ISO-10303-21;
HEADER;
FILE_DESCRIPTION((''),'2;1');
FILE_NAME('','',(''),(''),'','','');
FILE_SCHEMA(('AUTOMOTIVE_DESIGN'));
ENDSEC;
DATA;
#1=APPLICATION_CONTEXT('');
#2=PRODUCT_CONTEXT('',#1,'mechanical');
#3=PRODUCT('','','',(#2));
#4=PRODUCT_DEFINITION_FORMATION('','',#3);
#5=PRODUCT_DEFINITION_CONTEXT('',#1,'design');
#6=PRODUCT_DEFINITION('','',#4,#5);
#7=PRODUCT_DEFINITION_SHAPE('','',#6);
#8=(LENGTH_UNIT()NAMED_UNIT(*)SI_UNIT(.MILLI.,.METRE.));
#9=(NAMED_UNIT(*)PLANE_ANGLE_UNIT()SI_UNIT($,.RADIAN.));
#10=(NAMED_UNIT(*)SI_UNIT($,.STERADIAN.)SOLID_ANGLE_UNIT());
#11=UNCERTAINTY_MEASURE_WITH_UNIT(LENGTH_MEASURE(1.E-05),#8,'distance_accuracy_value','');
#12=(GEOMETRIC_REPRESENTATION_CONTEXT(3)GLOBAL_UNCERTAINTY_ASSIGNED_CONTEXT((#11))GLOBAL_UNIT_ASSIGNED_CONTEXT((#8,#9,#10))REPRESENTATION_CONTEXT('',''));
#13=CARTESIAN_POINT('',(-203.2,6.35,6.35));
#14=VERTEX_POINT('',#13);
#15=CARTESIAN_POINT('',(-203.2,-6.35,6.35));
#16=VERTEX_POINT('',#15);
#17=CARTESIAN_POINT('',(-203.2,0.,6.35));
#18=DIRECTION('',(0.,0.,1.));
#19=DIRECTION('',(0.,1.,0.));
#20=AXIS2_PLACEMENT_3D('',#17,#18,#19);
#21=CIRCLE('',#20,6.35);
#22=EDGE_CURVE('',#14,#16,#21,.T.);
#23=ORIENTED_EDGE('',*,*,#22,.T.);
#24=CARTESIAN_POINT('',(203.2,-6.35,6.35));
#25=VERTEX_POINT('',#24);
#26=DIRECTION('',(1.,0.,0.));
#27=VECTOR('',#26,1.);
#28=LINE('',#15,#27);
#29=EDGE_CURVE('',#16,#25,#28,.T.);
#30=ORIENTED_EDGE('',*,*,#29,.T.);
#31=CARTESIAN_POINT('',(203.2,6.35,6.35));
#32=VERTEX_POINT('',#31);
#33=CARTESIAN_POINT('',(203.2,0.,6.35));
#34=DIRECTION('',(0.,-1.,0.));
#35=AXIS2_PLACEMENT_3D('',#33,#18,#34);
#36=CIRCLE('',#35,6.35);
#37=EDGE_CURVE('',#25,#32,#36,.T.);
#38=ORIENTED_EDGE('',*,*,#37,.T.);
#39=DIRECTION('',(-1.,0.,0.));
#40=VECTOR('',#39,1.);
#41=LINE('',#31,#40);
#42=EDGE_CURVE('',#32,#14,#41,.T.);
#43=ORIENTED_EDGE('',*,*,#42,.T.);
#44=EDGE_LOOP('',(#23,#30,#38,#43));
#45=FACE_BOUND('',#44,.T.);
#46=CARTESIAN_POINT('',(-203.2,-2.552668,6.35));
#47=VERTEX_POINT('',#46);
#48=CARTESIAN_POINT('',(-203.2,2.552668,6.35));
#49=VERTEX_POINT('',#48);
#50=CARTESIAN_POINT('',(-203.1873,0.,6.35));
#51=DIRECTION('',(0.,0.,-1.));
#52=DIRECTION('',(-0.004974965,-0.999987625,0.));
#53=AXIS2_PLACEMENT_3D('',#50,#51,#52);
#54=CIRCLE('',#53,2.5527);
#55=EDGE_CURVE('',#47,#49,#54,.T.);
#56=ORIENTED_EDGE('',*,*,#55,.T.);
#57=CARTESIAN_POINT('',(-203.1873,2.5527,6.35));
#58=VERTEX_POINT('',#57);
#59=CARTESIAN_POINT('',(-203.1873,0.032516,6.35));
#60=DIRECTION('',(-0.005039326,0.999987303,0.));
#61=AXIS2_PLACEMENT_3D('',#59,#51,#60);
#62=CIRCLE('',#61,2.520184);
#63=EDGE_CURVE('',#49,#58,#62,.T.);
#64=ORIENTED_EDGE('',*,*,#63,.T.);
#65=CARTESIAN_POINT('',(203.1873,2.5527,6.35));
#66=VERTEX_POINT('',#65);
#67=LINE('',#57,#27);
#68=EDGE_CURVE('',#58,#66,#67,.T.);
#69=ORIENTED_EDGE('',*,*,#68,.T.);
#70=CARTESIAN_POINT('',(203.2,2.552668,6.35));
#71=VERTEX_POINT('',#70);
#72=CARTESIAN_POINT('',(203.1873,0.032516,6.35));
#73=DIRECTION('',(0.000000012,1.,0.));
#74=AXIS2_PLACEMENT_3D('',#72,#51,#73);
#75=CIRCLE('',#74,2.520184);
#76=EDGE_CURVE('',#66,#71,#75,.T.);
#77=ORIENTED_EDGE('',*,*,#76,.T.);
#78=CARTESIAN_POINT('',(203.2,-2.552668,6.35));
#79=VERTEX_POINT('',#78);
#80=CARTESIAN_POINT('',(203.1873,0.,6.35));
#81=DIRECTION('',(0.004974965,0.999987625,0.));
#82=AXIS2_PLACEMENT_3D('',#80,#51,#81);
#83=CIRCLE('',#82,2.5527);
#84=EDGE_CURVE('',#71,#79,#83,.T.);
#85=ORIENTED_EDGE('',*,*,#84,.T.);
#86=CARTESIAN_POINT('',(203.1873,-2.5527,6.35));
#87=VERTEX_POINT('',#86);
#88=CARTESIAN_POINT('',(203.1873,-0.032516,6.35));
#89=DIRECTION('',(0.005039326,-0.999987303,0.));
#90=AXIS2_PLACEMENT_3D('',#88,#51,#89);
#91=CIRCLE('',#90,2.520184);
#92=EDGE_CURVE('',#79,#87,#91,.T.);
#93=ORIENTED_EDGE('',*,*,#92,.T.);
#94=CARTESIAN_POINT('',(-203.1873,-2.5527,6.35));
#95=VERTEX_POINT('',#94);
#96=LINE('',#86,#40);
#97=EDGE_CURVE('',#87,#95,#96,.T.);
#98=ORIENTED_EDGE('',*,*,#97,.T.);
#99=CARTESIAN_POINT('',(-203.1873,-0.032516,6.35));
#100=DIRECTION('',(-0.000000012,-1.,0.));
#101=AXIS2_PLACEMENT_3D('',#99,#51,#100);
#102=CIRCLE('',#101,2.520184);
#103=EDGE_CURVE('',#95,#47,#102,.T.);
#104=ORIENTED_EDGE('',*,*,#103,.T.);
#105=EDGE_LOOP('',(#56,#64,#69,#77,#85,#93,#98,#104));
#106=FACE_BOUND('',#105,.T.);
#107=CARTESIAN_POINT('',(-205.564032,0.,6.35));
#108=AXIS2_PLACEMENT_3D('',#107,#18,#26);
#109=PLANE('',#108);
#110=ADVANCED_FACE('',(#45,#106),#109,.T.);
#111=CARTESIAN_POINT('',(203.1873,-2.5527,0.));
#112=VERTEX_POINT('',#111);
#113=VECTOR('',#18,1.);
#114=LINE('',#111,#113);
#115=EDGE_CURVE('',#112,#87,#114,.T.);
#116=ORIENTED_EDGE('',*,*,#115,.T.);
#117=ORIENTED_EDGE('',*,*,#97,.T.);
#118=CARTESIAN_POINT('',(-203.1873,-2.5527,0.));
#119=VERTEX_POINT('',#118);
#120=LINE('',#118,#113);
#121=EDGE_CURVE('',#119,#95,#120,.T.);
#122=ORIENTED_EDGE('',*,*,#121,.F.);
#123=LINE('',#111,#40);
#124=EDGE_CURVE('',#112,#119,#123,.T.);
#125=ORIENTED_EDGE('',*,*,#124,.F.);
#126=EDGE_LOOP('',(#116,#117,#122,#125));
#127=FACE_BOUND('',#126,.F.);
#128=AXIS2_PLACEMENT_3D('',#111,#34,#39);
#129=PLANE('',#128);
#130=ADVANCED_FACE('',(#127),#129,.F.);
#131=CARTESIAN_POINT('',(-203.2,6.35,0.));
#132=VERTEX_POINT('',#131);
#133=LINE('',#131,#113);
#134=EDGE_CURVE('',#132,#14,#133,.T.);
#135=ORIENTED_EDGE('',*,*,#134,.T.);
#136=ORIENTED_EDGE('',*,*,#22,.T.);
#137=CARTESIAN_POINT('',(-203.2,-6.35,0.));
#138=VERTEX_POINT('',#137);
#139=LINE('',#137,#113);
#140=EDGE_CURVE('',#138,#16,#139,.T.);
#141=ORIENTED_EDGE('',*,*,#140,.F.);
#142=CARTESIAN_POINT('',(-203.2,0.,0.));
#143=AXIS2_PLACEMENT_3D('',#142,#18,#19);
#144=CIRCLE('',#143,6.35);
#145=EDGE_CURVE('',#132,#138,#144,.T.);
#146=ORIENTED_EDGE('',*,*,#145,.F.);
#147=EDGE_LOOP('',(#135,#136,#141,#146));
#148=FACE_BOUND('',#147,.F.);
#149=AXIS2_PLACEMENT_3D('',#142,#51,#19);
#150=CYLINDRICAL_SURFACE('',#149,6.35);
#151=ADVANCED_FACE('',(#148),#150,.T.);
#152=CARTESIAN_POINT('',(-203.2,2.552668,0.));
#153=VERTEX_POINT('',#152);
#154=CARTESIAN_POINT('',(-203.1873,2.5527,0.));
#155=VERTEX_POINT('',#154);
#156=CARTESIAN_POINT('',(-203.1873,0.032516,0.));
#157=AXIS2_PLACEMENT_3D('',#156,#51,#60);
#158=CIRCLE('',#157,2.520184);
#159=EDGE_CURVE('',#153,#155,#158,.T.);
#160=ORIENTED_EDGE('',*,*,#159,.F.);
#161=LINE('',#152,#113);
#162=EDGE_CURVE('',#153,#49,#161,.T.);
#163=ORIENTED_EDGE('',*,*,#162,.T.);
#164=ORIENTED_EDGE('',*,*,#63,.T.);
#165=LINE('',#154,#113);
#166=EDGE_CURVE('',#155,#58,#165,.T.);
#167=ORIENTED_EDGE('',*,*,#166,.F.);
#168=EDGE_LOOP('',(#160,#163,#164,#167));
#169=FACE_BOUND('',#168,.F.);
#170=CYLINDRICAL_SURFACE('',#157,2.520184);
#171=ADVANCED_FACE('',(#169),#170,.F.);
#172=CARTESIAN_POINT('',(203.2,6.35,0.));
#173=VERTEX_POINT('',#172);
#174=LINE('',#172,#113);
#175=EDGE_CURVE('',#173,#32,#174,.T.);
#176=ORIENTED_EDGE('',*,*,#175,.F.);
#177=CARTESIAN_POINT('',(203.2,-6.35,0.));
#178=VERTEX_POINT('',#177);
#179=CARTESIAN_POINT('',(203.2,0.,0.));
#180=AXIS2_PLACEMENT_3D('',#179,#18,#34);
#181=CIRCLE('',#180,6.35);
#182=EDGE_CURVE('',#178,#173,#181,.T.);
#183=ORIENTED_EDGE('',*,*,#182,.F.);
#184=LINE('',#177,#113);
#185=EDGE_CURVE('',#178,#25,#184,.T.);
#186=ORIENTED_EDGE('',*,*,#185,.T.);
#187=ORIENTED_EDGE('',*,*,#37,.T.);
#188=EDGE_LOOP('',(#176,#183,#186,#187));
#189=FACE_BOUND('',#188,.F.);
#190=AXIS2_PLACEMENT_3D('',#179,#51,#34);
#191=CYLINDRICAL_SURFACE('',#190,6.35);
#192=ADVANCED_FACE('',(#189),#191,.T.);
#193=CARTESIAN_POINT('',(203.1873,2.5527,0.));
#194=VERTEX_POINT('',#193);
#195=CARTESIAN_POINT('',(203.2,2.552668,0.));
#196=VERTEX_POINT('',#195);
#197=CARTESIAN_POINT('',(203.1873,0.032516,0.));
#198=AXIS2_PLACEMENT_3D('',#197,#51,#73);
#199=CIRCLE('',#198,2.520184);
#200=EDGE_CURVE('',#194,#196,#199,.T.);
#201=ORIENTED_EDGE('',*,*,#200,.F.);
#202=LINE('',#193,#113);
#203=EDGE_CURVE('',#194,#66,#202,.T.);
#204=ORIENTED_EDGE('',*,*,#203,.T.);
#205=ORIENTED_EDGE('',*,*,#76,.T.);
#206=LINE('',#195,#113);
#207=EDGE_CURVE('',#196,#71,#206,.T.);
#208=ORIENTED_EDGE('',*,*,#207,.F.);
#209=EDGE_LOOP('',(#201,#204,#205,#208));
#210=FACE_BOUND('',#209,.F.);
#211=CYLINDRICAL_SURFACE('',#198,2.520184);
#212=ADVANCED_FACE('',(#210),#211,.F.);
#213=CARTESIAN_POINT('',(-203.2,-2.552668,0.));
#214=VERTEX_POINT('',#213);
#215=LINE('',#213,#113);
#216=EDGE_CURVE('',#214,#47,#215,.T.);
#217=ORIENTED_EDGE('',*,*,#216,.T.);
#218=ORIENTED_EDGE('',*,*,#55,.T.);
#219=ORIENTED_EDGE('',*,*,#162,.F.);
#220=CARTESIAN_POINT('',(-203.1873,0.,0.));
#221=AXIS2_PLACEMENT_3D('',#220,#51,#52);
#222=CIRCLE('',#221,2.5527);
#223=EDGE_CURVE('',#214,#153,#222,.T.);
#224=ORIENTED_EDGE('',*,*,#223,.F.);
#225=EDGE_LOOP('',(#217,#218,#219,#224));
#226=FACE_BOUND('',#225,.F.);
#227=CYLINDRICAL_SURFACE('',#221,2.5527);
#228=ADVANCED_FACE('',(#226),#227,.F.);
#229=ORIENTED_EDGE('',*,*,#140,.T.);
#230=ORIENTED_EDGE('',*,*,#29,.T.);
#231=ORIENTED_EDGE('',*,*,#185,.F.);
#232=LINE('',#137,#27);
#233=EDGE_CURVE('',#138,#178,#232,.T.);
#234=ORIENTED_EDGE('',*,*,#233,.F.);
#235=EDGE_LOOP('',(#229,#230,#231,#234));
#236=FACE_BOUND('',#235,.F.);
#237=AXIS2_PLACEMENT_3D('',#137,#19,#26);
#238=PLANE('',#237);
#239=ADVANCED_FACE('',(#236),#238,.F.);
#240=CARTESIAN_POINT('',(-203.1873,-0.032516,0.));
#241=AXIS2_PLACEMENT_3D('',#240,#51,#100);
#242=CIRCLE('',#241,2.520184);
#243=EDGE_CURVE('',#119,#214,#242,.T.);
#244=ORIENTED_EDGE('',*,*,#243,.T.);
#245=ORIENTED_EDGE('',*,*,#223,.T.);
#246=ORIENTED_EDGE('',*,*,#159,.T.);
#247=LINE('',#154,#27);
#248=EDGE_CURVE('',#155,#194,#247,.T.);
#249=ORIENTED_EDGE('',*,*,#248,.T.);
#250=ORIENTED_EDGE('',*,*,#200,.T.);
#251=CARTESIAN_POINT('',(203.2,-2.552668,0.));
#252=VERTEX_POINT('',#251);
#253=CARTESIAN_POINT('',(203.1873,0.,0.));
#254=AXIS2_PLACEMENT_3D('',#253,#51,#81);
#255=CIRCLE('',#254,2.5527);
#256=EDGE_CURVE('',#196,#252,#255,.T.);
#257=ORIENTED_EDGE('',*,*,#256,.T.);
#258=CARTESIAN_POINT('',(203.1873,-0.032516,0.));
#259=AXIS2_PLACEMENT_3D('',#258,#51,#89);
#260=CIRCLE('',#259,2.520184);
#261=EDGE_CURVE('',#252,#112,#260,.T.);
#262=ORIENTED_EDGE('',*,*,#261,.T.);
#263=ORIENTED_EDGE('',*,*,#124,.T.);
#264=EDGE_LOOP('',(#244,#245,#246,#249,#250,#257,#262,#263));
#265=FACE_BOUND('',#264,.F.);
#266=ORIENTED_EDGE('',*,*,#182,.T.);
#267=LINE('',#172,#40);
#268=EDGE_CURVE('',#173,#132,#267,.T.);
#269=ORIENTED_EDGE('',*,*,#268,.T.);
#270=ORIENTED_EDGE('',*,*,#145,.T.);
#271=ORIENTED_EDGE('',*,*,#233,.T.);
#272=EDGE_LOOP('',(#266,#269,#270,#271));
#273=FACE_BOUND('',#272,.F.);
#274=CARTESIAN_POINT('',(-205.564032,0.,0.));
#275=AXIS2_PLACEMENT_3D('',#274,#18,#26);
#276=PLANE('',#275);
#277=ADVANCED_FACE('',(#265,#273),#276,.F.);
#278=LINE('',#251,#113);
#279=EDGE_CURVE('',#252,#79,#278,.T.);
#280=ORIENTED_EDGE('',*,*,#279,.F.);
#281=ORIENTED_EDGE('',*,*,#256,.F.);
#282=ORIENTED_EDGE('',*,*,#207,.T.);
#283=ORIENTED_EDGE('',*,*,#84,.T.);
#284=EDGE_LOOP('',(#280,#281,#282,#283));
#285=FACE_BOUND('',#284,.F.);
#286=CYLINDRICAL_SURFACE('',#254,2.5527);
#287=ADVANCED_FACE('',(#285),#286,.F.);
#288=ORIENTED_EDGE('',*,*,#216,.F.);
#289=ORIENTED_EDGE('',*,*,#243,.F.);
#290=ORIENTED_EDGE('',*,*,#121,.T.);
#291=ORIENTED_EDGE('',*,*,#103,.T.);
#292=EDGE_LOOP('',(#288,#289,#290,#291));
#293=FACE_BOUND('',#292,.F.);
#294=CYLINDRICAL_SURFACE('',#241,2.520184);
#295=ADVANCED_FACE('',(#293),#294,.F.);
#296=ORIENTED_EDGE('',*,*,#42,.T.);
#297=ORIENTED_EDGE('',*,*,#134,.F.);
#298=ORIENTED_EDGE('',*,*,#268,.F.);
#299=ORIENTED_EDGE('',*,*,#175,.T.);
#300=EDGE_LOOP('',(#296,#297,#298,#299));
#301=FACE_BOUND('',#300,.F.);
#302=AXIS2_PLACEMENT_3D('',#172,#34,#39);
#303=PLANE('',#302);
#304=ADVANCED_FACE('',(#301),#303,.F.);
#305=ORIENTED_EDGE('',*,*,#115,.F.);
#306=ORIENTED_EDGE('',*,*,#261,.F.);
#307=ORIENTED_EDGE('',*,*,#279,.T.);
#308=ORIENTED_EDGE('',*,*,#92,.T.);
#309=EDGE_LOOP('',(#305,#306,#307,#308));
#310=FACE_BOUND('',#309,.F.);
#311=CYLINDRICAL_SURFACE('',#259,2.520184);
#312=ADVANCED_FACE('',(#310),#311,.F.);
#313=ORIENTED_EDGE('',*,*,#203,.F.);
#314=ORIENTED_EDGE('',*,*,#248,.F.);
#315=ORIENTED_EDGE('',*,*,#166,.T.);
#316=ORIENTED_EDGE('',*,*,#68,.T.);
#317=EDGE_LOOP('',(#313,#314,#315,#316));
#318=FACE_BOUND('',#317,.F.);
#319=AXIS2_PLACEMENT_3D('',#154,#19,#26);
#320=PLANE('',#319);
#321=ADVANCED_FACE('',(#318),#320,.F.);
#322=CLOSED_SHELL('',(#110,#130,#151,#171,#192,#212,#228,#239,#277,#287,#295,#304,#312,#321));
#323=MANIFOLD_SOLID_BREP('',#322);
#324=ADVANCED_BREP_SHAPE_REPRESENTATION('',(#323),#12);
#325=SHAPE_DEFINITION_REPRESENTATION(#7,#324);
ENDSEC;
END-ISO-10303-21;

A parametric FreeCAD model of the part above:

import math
import FreeCAD as App
import Part
import Sketcher
Q = App.Units.Quantity

doc = App.newDocument("Part")
params = doc.addObject("Spreadsheet::Sheet", "Params")
for row, (alias, value) in enumerate([
    ("sketch1_width", "16 in"),
    ("sketch1_radius", "0.25 in"),
    ("sketch1_width2", "15.999 in"),
    ("pad1_length", "0.25 in"),
], start=1):
    params.set(f"A{row}", alias)
    params.set(f"B{row}", "=" + value)
    params.setAlias(f"B{row}", alias)

body = doc.addObject("PartDesign::Body", "Body")

# Sketch on XY plane
sketch1 = body.newObject("Sketcher::SketchObject", "Sketch")
sketch1.AttachmentSupport = (doc.getObject("XY_Plane"), [""])
sketch1.MapMode = "FlatFace"
sketch1.addGeometry([
    Part.LineSegment(App.Vector(203.2, 6.35, 0), App.Vector(-203.2, 6.35, 0)),  # 0
    Part.ArcOfCircle(Part.Circle(App.Vector(-203.2, 0, 0), App.Vector(0, 0, 1), 6.35), math.radians(90), math.radians(270)),  # 1
    Part.LineSegment(App.Vector(-203.2, -6.35, 0), App.Vector(203.2, -6.35, 0)),  # 2
    Part.ArcOfCircle(Part.Circle(App.Vector(203.2, 0, 0), App.Vector(0, 0, 1), 6.35), math.radians(-90), math.radians(90)),  # 3
    Part.ArcOfCircle(Part.Circle(App.Vector(-203.1873, 0, 0), App.Vector(0, 0, 1), 2.5527), math.radians(90.285046), math.radians(269.714954)),  # 4
    Part.ArcOfCircle(Part.Circle(App.Vector(-203.1873, 0.032516, 0), App.Vector(0, 0, 1), 2.520184), math.radians(90.000001), math.radians(90.288733)),  # 5
    Part.LineSegment(App.Vector(-203.1873, 2.5527, 0), App.Vector(203.1873, 2.5527, 0)),  # 6
    Part.ArcOfCircle(Part.Circle(App.Vector(203.1873, 0.032516, 0), App.Vector(0, 0, 1), 2.520184), math.radians(89.711267), math.radians(89.999999)),  # 7
    Part.ArcOfCircle(Part.Circle(App.Vector(203.1873, 0, 0), App.Vector(0, 0, 1), 2.5527), math.radians(-89.714954), math.radians(89.714954)),  # 8
    Part.ArcOfCircle(Part.Circle(App.Vector(203.1873, -0.032516, 0), App.Vector(0, 0, 1), 2.520184), math.radians(-89.999999), math.radians(-89.711267)),  # 9
    Part.LineSegment(App.Vector(203.1873, -2.5527, 0), App.Vector(-203.1873, -2.5527, 0)),  # 10
    Part.ArcOfCircle(Part.Circle(App.Vector(-203.1873, -0.032516, 0), App.Vector(0, 0, 1), 2.520184), math.radians(-90.288733), math.radians(-90.000001)),  # 11
], False)
sketch1.addConstraint([
    Sketcher.Constraint("Tangent", 0, 2, 1, 1),
    Sketcher.Constraint("Tangent", 1, 2, 2, 1),
    Sketcher.Constraint("Tangent", 2, 2, 3, 1),
    Sketcher.Constraint("Tangent", 3, 2, 0, 1),
    Sketcher.Constraint("Coincident", 4, 1, 5, 2),
    Sketcher.Constraint("Tangent", 5, 1, 6, 1),
    Sketcher.Constraint("Tangent", 6, 2, 7, 2),
    Sketcher.Constraint("Coincident", 7, 1, 8, 2),
    Sketcher.Constraint("Coincident", 8, 1, 9, 2),
    Sketcher.Constraint("Tangent", 9, 1, 10, 1),
    Sketcher.Constraint("Tangent", 10, 2, 11, 2),
    Sketcher.Constraint("Coincident", 11, 1, 4, 2),
    Sketcher.Constraint("Horizontal", 0),
    Sketcher.Constraint("Horizontal", 2),
    Sketcher.Constraint("Horizontal", 6),
    Sketcher.Constraint("Horizontal", 10),
    Sketcher.Constraint("Equal", 5, 7),
    Sketcher.Constraint("Equal", 4, 8),
    Sketcher.Constraint("Equal", 7, 9),
    Sketcher.Constraint("Equal", 9, 11),
    Sketcher.Constraint("Symmetric", 1, 3, 3, 3, -1, 1),
    Sketcher.Constraint("Symmetric", 4, 3, 8, 3, -1, 1),
    Sketcher.Constraint("Horizontal", 4, 3, 8, 3),
    Sketcher.Constraint("Horizontal", 4, 1, 7, 1),
    Sketcher.Constraint("Horizontal", 8, 1, 11, 1),
    Sketcher.Constraint("Vertical", 4, 3, 5, 3),
    Sketcher.Constraint("Vertical", 8, 3, 9, 3),
    Sketcher.Constraint("Vertical", 1, 2, 4, 1),
    Sketcher.Constraint("Vertical", 7, 1, 8, 1),
    Sketcher.Constraint("DistanceX", 0, 2, 0, 1, Q("16 in")),
    Sketcher.Constraint("Radius", 1, Q("0.25 in")),
    Sketcher.Constraint("Radius", 4, Q("0.1005 in")),
    Sketcher.Constraint("DistanceX", 6, 1, 6, 2, Q("15.999 in")),
    Sketcher.Constraint("Radius", 5, 2.520184),
])
sketch1.setExpression("Constraints[29]", "Params.sketch1_width")
sketch1.setExpression("Constraints[30]", "Params.sketch1_radius")
sketch1.setExpression("Constraints[32]", "Params.sketch1_width2")
pad1 = body.newObject("PartDesign::Pad", "Pad")
pad1.Profile = sketch1
pad1.setExpression("Length", "Params.pad1_length")

doc.recompute()
